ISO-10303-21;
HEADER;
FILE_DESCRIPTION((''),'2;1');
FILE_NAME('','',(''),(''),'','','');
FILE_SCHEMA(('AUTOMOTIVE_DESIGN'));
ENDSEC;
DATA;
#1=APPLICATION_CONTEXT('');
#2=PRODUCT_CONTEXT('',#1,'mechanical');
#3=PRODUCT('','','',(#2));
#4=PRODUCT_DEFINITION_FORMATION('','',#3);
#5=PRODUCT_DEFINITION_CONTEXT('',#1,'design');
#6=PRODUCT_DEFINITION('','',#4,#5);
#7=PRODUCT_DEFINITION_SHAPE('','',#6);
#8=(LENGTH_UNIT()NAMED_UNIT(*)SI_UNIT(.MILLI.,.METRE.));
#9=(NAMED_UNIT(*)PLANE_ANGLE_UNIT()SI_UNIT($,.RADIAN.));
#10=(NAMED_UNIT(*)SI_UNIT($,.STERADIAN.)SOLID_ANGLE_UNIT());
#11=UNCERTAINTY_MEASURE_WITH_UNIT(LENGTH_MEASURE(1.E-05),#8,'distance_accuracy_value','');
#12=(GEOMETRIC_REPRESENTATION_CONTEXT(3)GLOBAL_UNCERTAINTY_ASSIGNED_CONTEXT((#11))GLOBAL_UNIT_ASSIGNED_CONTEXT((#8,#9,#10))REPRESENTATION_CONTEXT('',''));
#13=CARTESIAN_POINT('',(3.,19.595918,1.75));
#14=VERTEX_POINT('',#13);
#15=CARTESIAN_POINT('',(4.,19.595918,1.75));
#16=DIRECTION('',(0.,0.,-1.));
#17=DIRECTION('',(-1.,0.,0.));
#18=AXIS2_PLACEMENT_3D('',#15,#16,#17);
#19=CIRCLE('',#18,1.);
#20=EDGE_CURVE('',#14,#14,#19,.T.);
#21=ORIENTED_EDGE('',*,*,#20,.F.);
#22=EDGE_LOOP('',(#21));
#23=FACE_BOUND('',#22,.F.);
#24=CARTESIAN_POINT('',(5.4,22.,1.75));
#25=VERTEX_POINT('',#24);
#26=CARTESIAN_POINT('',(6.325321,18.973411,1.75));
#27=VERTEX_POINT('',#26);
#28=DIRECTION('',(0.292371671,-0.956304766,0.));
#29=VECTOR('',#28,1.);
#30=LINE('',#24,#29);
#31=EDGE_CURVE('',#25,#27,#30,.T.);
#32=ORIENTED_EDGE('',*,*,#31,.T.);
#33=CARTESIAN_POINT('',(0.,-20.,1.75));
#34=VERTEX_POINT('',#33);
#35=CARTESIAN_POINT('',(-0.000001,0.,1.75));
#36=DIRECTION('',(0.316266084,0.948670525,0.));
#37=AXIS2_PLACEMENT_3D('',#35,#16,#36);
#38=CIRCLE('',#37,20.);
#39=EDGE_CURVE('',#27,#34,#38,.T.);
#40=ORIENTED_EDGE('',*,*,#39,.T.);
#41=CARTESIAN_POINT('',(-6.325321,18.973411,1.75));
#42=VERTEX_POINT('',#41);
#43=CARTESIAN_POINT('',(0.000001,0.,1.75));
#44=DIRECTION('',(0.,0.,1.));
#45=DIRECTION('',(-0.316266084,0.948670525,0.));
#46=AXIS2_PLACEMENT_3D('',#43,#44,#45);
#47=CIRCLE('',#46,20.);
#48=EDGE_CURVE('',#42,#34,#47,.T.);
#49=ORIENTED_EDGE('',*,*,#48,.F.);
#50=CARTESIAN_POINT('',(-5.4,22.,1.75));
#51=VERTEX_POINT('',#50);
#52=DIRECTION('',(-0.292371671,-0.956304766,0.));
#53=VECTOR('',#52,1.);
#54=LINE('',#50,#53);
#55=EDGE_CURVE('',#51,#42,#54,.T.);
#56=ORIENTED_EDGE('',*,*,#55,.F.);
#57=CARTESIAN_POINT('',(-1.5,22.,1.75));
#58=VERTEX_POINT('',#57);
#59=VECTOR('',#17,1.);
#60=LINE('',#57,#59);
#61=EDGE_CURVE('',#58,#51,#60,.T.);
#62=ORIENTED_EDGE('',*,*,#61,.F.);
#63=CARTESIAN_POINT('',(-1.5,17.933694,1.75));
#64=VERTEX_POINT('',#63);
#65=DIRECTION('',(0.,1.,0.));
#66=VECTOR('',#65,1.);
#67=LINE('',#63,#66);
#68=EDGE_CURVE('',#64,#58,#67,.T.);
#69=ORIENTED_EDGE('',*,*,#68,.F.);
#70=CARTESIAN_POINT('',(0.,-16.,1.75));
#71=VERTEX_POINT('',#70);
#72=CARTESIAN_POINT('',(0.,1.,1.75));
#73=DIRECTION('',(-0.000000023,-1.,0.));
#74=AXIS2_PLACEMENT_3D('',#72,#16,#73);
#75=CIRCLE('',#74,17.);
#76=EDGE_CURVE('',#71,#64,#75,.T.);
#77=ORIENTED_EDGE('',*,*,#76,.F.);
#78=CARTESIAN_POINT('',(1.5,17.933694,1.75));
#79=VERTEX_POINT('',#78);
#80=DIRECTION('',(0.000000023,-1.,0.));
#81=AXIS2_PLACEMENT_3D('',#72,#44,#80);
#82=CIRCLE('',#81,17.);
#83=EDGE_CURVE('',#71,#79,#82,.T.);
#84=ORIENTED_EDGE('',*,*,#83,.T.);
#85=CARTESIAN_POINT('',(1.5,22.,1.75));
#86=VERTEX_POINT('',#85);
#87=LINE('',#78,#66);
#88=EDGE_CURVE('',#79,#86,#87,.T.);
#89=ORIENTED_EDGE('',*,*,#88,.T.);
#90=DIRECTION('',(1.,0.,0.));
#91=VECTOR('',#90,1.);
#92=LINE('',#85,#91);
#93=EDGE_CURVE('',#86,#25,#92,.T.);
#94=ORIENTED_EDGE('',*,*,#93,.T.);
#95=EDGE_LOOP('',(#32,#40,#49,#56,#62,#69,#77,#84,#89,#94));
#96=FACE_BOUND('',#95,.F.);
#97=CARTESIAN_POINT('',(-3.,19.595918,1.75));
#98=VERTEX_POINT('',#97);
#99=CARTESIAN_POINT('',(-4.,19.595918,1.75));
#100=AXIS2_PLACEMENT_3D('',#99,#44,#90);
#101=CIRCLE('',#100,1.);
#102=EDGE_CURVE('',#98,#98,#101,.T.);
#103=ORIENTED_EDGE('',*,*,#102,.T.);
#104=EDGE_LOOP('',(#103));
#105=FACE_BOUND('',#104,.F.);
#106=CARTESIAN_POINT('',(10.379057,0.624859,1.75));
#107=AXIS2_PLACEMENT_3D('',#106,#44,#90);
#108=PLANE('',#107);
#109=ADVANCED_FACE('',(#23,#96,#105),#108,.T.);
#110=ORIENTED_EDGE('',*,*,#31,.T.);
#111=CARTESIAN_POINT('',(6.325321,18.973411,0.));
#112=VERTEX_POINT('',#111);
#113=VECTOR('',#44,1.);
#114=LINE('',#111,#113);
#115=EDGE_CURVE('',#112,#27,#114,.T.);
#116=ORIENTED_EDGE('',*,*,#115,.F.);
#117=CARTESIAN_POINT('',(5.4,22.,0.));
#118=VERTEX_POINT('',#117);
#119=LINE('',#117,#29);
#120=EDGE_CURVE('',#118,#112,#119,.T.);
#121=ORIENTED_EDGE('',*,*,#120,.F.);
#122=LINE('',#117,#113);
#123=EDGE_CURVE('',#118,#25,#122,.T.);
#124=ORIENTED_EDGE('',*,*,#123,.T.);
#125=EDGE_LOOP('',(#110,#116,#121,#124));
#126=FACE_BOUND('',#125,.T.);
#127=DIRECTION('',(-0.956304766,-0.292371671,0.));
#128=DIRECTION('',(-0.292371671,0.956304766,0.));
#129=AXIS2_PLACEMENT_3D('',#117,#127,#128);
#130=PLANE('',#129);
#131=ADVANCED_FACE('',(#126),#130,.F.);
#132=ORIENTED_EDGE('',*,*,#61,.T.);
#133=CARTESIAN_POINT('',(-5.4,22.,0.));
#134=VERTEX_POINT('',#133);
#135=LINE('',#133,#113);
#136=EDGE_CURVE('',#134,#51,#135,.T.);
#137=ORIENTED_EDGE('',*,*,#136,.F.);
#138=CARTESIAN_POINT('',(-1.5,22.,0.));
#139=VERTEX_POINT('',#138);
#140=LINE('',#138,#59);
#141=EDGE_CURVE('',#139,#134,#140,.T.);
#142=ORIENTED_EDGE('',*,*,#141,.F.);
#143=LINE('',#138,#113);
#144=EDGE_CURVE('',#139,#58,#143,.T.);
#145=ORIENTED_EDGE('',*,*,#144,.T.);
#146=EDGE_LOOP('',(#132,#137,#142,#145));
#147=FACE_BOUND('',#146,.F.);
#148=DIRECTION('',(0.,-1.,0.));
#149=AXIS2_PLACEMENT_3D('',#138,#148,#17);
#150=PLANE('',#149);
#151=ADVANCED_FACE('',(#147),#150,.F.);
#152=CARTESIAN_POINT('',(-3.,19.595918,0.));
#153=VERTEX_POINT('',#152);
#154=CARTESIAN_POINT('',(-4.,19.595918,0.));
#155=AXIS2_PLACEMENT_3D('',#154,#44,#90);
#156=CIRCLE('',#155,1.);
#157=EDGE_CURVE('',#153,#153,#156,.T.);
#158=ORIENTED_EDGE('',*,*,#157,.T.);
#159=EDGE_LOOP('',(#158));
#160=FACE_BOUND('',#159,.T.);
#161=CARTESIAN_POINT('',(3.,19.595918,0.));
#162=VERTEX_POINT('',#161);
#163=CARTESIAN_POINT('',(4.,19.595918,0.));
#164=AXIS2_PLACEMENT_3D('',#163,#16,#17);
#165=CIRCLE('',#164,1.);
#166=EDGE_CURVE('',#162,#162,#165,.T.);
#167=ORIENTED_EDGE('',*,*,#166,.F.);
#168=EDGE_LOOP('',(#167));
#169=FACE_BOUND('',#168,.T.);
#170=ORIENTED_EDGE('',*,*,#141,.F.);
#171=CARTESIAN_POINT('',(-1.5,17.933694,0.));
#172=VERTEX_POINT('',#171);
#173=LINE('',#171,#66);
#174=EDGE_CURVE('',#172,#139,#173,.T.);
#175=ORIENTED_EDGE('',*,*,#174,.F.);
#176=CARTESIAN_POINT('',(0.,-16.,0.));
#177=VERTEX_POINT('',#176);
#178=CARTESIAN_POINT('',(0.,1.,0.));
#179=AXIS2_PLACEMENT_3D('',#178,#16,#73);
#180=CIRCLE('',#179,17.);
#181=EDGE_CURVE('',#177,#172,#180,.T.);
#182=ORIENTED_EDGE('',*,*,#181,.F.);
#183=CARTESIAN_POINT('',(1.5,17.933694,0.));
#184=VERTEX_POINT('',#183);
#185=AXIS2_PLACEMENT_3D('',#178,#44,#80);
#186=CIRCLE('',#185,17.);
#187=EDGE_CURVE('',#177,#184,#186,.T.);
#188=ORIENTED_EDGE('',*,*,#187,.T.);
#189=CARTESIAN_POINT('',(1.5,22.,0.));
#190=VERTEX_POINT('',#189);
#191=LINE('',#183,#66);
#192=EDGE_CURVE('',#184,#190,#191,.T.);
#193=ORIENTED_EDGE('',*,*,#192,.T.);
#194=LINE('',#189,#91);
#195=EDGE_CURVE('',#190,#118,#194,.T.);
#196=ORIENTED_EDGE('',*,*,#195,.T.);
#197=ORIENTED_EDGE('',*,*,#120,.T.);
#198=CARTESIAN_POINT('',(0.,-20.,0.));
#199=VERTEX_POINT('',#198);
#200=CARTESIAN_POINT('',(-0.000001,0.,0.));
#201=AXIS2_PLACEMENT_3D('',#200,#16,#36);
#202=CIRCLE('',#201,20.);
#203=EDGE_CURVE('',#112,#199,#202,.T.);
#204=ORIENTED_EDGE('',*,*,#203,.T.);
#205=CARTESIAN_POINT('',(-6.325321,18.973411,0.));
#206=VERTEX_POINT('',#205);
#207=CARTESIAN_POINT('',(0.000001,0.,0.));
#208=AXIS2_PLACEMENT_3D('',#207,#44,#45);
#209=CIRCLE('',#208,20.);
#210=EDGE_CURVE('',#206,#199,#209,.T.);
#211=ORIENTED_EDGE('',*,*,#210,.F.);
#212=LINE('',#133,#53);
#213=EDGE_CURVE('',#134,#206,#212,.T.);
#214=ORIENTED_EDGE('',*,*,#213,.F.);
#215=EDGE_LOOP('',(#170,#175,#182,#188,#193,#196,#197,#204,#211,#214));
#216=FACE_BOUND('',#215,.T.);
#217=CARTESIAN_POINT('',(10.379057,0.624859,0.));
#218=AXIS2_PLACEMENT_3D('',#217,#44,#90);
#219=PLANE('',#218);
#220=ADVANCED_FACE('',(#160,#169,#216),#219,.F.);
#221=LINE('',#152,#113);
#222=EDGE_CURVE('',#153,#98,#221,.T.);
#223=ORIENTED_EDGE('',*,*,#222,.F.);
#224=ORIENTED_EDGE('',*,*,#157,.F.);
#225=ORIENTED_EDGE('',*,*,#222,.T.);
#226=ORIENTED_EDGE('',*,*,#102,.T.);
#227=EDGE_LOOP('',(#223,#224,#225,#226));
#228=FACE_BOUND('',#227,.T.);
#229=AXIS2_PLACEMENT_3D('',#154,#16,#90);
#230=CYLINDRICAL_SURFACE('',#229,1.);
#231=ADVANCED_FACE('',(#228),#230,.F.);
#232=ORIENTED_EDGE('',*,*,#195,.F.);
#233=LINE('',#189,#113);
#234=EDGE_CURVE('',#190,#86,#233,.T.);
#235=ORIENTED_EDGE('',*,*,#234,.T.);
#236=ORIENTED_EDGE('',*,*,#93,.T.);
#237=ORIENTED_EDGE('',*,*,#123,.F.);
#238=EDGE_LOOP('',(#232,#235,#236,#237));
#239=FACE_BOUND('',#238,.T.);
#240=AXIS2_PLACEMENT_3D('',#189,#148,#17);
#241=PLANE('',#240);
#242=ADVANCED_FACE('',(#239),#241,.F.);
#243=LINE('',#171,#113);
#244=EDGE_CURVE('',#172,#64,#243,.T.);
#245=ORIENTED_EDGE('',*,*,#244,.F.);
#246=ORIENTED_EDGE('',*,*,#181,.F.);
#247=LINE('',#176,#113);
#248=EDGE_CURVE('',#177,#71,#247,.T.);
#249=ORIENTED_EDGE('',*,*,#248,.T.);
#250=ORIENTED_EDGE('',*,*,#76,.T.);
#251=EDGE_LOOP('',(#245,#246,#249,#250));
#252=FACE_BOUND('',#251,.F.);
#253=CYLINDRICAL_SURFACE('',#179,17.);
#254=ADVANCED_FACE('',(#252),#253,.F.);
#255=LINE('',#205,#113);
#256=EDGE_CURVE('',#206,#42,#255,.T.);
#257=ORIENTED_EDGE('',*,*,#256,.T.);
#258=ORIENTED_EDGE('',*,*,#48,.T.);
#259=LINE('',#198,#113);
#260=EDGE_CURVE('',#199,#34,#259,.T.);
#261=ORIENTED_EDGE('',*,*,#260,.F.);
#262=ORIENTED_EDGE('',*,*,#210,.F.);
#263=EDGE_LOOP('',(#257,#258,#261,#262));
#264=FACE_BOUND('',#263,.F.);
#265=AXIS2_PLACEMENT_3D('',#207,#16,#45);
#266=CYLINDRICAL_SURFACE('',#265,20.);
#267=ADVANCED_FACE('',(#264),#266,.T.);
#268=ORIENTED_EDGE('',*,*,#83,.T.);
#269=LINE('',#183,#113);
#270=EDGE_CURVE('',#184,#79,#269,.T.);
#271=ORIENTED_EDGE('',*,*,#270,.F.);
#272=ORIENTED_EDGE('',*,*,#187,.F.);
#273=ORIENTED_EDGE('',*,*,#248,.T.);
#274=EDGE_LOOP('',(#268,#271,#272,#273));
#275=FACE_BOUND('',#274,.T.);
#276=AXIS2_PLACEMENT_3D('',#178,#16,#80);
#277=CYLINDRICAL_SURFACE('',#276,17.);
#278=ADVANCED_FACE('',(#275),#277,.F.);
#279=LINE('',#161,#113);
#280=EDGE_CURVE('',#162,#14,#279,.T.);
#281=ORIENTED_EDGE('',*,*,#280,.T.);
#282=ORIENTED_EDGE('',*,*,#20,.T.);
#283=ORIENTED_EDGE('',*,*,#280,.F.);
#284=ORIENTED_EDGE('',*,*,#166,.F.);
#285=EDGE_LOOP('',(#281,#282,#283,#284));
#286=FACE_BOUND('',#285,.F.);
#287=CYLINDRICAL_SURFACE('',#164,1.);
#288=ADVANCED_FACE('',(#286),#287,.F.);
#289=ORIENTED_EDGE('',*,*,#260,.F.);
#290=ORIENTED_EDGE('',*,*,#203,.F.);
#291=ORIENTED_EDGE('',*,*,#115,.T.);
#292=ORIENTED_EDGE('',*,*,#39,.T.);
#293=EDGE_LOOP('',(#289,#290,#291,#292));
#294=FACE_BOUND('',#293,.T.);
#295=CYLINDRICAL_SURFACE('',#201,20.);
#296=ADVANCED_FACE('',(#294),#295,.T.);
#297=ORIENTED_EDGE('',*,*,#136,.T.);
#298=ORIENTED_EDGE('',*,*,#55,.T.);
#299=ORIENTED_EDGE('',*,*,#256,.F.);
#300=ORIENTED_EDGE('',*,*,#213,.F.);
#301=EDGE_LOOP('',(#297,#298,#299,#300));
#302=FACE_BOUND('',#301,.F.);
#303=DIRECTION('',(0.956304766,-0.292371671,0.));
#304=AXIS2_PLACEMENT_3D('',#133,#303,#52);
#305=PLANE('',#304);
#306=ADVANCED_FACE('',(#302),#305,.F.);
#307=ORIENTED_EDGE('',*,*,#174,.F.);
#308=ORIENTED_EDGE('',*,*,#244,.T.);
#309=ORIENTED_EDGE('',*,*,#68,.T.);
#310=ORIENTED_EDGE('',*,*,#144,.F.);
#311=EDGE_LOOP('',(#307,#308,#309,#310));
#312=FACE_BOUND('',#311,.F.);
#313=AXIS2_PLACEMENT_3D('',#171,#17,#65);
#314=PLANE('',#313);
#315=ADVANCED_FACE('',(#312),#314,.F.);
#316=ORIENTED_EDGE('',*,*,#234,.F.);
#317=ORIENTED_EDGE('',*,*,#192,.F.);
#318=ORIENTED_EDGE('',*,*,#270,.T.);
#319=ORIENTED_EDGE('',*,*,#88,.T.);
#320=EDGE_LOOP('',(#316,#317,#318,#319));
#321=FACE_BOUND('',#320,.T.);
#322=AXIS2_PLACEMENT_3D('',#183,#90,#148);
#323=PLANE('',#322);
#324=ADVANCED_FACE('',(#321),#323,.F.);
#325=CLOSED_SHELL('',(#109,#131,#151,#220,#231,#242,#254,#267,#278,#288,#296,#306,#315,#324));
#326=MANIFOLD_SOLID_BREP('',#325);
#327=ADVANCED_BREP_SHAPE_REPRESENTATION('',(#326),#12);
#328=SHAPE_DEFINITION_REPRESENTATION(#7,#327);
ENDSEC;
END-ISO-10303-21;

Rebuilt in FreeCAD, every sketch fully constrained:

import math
import FreeCAD as App
import Part
import Sketcher
from FreeCAD import Vector
Q = App.Units.Quantity

doc = App.newDocument("Part")
body = doc.addObject("PartDesign::Body", "Body")

# Sketch on XY plane
sketch1 = body.newObject("Sketcher::SketchObject", "Sketch")
sketch1.AttachmentSupport = (doc.getObject("XY_Plane"), [""])
sketch1.MapMode = "FlatFace"
sketch1.addGeometry([
    Part.LineSegment(Vector(-5.4, 22, 0), Vector(-6.3, 19, 0)),  # 0
    Part.ArcOfCircle(Part.Circle(Vector(0, 0, 0), Vector(0, 0, 1), 20), math.radians(108), math.radians(270)),  # 1
    Part.LineSegment(Vector(0, -20, 0), Vector(0, -16, 0)),  # 2
    Part.ArcOfCircle(Part.Circle(Vector(0, 1, 0), Vector(0, 0, 1), 17), math.radians(95), math.radians(270)),  # 3
    Part.LineSegment(Vector(-1.5, 17.9, 0), Vector(-1.5, 22, 0)),  # 4
    Part.LineSegment(Vector(-1.5, 22, 0), Vector(-5.4, 22, 0)),  # 5
    Part.Circle(Vector(-4, 19.6, 0), Vector(0, 0, 1), 1),  # 6
], False)
sketch1.addConstraint([
    Sketcher.Constraint("Coincident", 0, 2, 1, 1),
    Sketcher.Constraint("Coincident", 1, 2, 2, 1),
    Sketcher.Constraint("Coincident", 2, 2, 3, 2),
    Sketcher.Constraint("Coincident", 3, 1, 4, 1),
    Sketcher.Constraint("Coincident", 4, 2, 5, 1),
    Sketcher.Constraint("Coincident", 5, 2, 0, 1),
    Sketcher.Constraint("Vertical", 2),
    Sketcher.Constraint("Vertical", 4),
    Sketcher.Constraint("Horizontal", 5),
    Sketcher.Constraint("Coincident", 1, 3, -1, 1),
    Sketcher.Constraint("PointOnObject", 3, 3, -2),
    Sketcher.Constraint("PointOnObject", 1, 2, -2),
    Sketcher.Constraint("Diameter", 6, Q("2 mm")),
    Sketcher.Constraint("Radius", 1, Q("20 mm")),
    Sketcher.Constraint("Radius", 3, Q("17 mm")),
    Sketcher.Constraint("DistanceY", 2, 1, 2, 2, Q("4 mm")),
    Sketcher.Constraint("Angle", 0, Q("-106.999998 deg")),
    Sketcher.Constraint("DistanceX", 5, 2, 5, 1, Q("3.9 mm")),
    Sketcher.Constraint("DistanceX", 6, 3, -1, 1, Q("4 mm")),
    Sketcher.Constraint("DistanceY", -1, 1, 4, 2, Q("22 mm")),
    Sketcher.Constraint("DistanceX", 3, 1, -1, 1, Q("1.5 mm")),
    Sketcher.Constraint("DistanceY", -1, 1, 6, 3, Q("19.595918 mm")),
])
pad1 = body.newObject("PartDesign::Pad", "Pad")
pad1.Profile = sketch1
pad1.Length = 1.75
body2 = doc.addObject("PartDesign::Body", "Body001")
doc.recompute()

body2.BaseFeature = body
doc.recompute()

mirroring = doc.addObject("Part::Mirroring", "Mirroring")
mirroring.Source = body
mirroring.Base = Vector(0, 0, 0)
mirroring.Normal = Vector(1, 0, 0)
body3 = doc.addObject("PartDesign::Body", "Body002")
body3.BaseFeature = mirroring
boolean = body2.newObject("PartDesign::Boolean", "Boolean")
boolean.Type = "Fuse"
boolean.addObjects([body3])
doc.recompute()
mirroring.Visibility = False

doc.recompute()
